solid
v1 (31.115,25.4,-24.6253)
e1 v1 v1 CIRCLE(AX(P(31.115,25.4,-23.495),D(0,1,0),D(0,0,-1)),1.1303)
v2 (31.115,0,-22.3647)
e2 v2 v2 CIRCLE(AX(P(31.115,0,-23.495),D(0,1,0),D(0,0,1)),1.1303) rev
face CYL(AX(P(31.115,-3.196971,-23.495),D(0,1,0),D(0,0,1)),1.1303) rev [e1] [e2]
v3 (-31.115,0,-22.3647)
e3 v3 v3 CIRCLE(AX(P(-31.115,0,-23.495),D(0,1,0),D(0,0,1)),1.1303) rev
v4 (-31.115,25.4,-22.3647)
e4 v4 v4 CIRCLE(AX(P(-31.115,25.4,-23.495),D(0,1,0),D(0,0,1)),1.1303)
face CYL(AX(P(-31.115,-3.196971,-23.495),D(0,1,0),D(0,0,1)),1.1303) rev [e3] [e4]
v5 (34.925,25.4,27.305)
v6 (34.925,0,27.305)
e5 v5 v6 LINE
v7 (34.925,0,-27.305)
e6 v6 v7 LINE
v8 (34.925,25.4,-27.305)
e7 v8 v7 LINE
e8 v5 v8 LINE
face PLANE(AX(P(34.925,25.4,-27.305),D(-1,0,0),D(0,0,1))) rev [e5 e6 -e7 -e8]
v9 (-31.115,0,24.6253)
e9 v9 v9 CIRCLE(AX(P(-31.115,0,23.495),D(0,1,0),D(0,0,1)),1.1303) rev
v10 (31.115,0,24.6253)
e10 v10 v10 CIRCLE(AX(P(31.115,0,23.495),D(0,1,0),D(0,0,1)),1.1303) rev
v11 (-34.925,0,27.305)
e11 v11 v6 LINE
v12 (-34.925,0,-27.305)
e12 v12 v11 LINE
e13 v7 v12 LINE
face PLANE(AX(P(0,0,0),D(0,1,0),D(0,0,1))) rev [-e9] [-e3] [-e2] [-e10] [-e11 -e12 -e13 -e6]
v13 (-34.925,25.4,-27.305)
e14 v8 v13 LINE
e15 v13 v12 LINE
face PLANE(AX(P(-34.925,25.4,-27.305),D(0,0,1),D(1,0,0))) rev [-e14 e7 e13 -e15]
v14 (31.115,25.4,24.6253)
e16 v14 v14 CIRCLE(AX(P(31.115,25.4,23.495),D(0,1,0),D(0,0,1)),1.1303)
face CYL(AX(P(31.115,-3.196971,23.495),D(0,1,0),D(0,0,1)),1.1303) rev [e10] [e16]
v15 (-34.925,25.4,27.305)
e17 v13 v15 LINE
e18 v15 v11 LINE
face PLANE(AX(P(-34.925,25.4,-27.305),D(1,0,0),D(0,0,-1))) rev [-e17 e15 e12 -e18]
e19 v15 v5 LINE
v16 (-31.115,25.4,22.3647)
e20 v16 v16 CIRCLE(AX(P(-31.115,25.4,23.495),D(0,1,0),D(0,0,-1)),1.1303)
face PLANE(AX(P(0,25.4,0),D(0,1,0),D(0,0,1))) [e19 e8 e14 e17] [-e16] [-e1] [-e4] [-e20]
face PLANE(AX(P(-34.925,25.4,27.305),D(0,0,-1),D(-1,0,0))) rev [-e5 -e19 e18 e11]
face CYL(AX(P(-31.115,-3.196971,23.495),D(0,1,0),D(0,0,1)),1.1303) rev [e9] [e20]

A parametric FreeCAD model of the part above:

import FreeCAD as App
import Part
import Sketcher

V = App.Vector
Q = App.Units.Quantity


def add_polygon(sketch, points):
    """Adds a closed chain of lines whose ends are joined by coincident constraints."""
    first, n = sketch.GeometryCount, len(points)
    for a, b in zip(points, points[1:] + points[:1]):
        sketch.addGeometry(Part.LineSegment(App.Vector(*a, 0), App.Vector(*b, 0)), False)
    for i in range(n):
        sketch.addConstraint(Sketcher.Constraint("Coincident", first + i, 2, first + (i + 1) % n, 1))

doc = App.newDocument("Part")
body = doc.addObject("PartDesign::Body", "Body")

# Sketch on XZ plane
sketch1 = body.newObject("Sketcher::SketchObject", "Sketch")
sketch1.AttachmentSupport = (doc.getObject("XZ_Plane"), [""])
sketch1.MapMode = "FlatFace"
add_polygon(sketch1, [(-34.925, -27.305), (-34.925, 27.305), (34.925, 27.305), (34.925, -27.305)])  # lines 0-3
sketch1.addConstraint([
    Sketcher.Constraint("Vertical", 0),
    Sketcher.Constraint("Horizontal", 1),
    Sketcher.Constraint("Vertical", 2),
    Sketcher.Constraint("Horizontal", 3),
    Sketcher.Constraint("Symmetric", 0, 2, 2, 2, -1, 1),
    Sketcher.Constraint("DistanceX", 1, 1, 1, 2, Q("2.75 in")),
    Sketcher.Constraint("DistanceY", 0, 1, 0, 2, Q("2.15 in")),
])
pad1 = body.newObject("PartDesign::Pad", "Pad")
pad1.Profile = sketch1
pad1.Length = Q("1 in")
pad1.Reversed = True

# Sketch on XZ plane
sketch2 = body.newObject("Sketcher::SketchObject", "Sketch001")
sketch2.AttachmentSupport = (doc.getObject("XZ_Plane"), [""])
sketch2.MapMode = "FlatFace"
sketch2.AttachmentOffset = App.Placement(V(0, 0, -1 * 25.4), App.Rotation())
sketch2.addGeometry([
    Part.Circle(V(-31.115, -23.495, 0), V(0, 0, 1), 1.1303),
    Part.Circle(V(31.115, -23.495, 0), V(0, 0, 1), 1.1303),
    Part.Circle(V(31.115, 23.495, 0), V(0, 0, 1), 1.1303),
    Part.Circle(V(-31.115, 23.495, 0), V(0, 0, 1), 1.1303),
], False)
sketch2.addConstraint([
    Sketcher.Constraint("Equal", 0, 1),
    Sketcher.Constraint("Equal", 1, 2),
    Sketcher.Constraint("Equal", 2, 3),
    Sketcher.Constraint("Symmetric", 0, 3, 2, 3, -1, 1),
    Sketcher.Constraint("Symmetric", 1, 3, 3, 3, -1, 1),
    Sketcher.Constraint("Symmetric", 0, 3, 1, 3, -2),
    Sketcher.Constraint("Diameter", 0, Q("0.089 in")),
    Sketcher.Constraint("DistanceX", 0, 3, 1, 3, Q("2.45 in")),
    Sketcher.Constraint("DistanceY", 1, 3, 2, 3, Q("1.85 in")),
])
pocket1 = body.newObject("PartDesign::Pocket", "Pocket")
pocket1.Profile = sketch2
pocket1.Length = Q("1 in")
pocket1.Reversed = True

doc.recompute()
